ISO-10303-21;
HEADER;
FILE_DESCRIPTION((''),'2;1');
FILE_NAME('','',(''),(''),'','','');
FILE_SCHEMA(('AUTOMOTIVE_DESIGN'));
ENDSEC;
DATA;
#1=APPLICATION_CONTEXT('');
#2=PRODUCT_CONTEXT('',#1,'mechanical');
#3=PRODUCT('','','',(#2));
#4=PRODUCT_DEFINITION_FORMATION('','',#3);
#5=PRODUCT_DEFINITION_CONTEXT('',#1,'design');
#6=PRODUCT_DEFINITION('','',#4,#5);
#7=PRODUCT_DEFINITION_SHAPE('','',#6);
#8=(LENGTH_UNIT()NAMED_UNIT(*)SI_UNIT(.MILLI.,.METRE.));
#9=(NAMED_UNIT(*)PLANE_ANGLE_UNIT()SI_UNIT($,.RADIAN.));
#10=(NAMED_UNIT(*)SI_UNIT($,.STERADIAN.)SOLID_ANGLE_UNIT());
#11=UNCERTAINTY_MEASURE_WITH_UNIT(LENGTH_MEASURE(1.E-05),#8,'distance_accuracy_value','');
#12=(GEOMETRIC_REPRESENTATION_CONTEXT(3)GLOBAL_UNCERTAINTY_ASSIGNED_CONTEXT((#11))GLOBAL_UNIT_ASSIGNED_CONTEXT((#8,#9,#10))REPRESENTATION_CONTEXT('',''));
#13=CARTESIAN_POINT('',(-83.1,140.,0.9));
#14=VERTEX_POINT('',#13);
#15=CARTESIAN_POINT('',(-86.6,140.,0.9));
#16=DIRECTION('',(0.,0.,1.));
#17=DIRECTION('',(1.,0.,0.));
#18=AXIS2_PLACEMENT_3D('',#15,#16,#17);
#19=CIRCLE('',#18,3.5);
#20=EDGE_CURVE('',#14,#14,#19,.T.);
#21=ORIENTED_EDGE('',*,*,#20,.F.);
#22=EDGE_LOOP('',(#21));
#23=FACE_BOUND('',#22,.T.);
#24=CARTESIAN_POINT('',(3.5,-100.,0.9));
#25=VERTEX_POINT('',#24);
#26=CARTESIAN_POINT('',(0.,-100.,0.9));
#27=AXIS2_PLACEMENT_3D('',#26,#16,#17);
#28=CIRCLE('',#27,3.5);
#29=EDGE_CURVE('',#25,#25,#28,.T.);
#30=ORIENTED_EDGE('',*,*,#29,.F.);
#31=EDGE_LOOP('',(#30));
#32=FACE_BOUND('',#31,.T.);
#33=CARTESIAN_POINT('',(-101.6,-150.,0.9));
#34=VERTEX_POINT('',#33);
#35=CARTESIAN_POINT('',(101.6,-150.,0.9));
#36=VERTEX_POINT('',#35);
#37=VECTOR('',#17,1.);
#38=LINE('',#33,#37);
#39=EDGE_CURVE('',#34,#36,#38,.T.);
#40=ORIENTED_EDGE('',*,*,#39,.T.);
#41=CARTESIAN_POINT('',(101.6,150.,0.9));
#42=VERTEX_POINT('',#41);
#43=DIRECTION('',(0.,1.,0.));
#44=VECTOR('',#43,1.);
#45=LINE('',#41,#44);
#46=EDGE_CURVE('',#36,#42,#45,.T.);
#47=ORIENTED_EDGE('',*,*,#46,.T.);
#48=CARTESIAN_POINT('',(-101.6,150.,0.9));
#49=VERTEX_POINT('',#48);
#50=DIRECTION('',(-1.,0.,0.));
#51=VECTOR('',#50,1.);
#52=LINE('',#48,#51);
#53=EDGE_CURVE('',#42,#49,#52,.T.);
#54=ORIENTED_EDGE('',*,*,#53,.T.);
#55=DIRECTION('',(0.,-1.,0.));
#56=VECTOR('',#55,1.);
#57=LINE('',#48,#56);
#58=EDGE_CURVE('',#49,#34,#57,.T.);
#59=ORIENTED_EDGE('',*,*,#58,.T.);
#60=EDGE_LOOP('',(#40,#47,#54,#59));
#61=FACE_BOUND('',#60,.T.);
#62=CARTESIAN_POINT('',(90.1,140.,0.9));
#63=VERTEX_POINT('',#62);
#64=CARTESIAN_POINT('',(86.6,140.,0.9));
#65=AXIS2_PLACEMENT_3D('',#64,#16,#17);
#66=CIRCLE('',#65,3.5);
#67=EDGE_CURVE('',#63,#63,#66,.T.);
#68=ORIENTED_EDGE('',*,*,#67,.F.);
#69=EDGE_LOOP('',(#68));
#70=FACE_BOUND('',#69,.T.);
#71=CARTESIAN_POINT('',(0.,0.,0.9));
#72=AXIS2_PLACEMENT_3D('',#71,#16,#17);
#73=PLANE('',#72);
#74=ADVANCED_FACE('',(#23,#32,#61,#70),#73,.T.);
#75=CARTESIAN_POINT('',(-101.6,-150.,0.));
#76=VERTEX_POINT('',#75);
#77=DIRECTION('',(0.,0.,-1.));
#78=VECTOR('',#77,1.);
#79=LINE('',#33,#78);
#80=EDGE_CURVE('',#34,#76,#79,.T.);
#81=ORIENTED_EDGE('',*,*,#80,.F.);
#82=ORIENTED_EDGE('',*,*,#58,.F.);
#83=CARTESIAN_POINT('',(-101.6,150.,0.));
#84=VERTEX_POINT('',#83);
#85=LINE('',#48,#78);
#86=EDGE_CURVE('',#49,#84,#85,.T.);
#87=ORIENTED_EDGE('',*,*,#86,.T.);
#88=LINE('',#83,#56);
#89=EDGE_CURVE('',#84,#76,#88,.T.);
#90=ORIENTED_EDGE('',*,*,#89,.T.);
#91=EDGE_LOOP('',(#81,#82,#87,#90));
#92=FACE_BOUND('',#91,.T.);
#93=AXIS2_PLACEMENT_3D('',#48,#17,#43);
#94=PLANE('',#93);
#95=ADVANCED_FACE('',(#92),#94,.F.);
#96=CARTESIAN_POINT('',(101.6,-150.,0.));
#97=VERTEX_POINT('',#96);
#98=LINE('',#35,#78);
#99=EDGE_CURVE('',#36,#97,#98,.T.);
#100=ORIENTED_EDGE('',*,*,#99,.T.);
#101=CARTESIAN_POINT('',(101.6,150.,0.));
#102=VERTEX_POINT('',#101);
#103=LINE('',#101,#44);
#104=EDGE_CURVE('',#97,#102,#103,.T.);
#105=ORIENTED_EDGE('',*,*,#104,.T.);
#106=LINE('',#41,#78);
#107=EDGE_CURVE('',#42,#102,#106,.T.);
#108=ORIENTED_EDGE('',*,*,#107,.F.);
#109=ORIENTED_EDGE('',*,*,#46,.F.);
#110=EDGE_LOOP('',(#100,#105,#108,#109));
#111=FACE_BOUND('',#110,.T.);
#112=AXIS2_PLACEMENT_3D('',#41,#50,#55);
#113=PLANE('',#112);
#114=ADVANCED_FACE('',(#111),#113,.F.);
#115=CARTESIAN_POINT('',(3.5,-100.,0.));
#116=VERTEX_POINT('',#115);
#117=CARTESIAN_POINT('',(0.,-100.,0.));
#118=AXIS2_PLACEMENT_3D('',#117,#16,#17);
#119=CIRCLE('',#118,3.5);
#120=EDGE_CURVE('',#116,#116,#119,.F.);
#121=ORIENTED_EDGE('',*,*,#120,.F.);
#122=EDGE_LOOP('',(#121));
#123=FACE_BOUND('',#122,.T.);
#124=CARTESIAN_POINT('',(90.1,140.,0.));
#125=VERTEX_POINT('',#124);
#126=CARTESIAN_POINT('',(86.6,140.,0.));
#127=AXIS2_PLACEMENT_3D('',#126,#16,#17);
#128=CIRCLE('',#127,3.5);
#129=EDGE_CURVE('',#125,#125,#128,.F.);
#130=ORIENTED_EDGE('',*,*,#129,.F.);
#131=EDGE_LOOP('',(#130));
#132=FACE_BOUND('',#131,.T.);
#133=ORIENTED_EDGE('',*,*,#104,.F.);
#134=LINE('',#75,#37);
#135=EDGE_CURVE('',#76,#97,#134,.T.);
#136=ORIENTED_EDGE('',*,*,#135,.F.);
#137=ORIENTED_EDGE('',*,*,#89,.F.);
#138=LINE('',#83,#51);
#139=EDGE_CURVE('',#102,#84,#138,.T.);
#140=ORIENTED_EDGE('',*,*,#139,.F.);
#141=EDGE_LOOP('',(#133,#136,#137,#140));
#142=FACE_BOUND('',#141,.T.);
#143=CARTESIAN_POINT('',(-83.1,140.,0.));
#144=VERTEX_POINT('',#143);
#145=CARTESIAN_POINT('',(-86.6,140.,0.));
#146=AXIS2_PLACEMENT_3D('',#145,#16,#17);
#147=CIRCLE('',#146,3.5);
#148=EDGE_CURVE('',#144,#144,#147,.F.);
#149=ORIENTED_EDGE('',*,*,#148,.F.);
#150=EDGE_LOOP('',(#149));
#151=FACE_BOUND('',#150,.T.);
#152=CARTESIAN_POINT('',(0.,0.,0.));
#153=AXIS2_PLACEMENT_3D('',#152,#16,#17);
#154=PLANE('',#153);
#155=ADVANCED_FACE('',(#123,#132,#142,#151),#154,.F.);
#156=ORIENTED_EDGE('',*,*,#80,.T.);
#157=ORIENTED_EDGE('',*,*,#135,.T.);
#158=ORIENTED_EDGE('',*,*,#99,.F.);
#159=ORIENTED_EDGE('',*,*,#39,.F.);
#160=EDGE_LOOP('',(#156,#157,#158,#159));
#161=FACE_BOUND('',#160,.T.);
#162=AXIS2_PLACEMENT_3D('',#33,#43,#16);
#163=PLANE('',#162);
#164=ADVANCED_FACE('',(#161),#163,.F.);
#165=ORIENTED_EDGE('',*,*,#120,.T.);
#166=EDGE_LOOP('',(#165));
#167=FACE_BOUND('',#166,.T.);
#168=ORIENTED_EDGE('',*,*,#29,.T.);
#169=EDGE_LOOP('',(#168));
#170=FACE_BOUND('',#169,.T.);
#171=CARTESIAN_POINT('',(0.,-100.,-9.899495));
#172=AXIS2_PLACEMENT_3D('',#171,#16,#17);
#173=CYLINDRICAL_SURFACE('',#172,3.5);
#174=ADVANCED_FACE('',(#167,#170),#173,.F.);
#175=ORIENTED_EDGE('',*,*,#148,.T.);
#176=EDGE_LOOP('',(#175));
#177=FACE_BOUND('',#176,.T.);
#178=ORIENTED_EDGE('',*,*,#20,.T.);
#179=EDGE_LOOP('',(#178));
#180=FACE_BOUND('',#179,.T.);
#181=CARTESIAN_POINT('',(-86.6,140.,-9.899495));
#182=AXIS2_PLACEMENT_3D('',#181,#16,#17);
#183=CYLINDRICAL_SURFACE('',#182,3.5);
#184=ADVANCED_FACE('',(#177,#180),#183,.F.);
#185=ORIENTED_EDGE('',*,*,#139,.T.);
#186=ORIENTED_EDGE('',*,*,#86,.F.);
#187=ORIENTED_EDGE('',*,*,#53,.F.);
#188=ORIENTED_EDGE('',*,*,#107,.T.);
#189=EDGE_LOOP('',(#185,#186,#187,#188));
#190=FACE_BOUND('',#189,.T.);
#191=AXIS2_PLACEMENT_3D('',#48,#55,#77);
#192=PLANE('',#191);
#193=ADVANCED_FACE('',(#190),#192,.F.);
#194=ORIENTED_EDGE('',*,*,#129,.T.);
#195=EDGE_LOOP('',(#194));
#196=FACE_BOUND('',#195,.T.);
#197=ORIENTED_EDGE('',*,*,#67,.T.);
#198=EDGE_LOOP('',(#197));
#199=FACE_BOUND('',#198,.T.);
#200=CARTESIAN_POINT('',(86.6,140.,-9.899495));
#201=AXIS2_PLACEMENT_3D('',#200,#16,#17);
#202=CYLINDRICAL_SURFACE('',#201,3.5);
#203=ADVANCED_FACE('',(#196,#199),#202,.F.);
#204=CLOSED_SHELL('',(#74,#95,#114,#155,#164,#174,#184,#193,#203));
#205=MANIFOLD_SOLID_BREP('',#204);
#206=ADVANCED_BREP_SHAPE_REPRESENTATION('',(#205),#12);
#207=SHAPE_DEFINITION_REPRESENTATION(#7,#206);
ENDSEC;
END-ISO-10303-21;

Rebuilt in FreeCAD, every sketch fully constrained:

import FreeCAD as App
import Part
import Sketcher

V = App.Vector


def add_polygon(sketch, points):
    """Adds a closed chain of lines whose ends are joined by coincident constraints."""
    first, n = sketch.GeometryCount, len(points)
    for a, b in zip(points, points[1:] + points[:1]):
        sketch.addGeometry(Part.LineSegment(App.Vector(*a, 0), App.Vector(*b, 0)), False)
    for i in range(n):
        sketch.addConstraint(Sketcher.Constraint("Coincident", first + i, 2, first + (i + 1) % n, 1))

doc = App.newDocument("Part")
body = doc.addObject("PartDesign::Body", "Body")

sketch1 = body.newObject("Sketcher::SketchObject", "Sketch")
sketch1.AttachmentSupport = (doc.getObject("XY_Plane"), [""])
sketch1.MapMode = "FlatFace"
add_polygon(sketch1, [(-102, 150), (-102, -150), (102, -150), (102, 150)])
sketch1.addConstraint([
    Sketcher.Constraint("Vertical", 0),
    Sketcher.Constraint("Horizontal", 1),
    Sketcher.Constraint("Vertical", 2),
    Sketcher.Constraint("Horizontal", 3),
    Sketcher.Constraint("Symmetric", 0, 2, 2, 2, -1, 1),
    Sketcher.Constraint("DistanceY", 0, 2, 0, 1, 300.0),
    Sketcher.Constraint("DistanceX", 1, 1, 1, 2, 203.2),
])
pad1 = body.newObject("PartDesign::Pad", "Pad")
pad1.Profile = sketch1
pad1.Length = 0.9

sketch2 = body.newObject("Sketcher::SketchObject", "Sketch001")
sketch2.AttachmentSupport = (doc.getObject("XY_Plane"), [""])
sketch2.MapMode = "FlatFace"
sketch2.AttachmentOffset = App.Placement(V(0, 0, 0.9), App.Rotation())
sketch2.addGeometry([
    Part.Circle(V(-86.6, 140, 0), V(0, 0, 1), 3.5),
    Part.Circle(V(86.6, 140, 0), V(0, 0, 1), 3.5),
    Part.Circle(V(0, -100, 0), V(0, 0, 1), 3.5),
], False)
sketch2.addConstraint([
    Sketcher.Constraint("Equal", 0, 1),
    Sketcher.Constraint("Equal", 1, 2),
    Sketcher.Constraint("Symmetric", 0, 3, 1, 3, -2),
    Sketcher.Constraint("PointOnObject", 2, 3, -2),
    Sketcher.Constraint("Diameter", 0, 7.0),
    Sketcher.Constraint("DistanceY", -1, 1, 0, 3, 140.0),
    Sketcher.Constraint("DistanceY", 2, 3, -1, 1, 100.0),
    Sketcher.Constraint("DistanceX", 0, 3, -1, 1, 86.6),
])
pocket1 = body.newObject("PartDesign::Pocket", "Pocket")
pocket1.Profile = sketch2
pocket1.Length = 0.9

doc.recompute()
